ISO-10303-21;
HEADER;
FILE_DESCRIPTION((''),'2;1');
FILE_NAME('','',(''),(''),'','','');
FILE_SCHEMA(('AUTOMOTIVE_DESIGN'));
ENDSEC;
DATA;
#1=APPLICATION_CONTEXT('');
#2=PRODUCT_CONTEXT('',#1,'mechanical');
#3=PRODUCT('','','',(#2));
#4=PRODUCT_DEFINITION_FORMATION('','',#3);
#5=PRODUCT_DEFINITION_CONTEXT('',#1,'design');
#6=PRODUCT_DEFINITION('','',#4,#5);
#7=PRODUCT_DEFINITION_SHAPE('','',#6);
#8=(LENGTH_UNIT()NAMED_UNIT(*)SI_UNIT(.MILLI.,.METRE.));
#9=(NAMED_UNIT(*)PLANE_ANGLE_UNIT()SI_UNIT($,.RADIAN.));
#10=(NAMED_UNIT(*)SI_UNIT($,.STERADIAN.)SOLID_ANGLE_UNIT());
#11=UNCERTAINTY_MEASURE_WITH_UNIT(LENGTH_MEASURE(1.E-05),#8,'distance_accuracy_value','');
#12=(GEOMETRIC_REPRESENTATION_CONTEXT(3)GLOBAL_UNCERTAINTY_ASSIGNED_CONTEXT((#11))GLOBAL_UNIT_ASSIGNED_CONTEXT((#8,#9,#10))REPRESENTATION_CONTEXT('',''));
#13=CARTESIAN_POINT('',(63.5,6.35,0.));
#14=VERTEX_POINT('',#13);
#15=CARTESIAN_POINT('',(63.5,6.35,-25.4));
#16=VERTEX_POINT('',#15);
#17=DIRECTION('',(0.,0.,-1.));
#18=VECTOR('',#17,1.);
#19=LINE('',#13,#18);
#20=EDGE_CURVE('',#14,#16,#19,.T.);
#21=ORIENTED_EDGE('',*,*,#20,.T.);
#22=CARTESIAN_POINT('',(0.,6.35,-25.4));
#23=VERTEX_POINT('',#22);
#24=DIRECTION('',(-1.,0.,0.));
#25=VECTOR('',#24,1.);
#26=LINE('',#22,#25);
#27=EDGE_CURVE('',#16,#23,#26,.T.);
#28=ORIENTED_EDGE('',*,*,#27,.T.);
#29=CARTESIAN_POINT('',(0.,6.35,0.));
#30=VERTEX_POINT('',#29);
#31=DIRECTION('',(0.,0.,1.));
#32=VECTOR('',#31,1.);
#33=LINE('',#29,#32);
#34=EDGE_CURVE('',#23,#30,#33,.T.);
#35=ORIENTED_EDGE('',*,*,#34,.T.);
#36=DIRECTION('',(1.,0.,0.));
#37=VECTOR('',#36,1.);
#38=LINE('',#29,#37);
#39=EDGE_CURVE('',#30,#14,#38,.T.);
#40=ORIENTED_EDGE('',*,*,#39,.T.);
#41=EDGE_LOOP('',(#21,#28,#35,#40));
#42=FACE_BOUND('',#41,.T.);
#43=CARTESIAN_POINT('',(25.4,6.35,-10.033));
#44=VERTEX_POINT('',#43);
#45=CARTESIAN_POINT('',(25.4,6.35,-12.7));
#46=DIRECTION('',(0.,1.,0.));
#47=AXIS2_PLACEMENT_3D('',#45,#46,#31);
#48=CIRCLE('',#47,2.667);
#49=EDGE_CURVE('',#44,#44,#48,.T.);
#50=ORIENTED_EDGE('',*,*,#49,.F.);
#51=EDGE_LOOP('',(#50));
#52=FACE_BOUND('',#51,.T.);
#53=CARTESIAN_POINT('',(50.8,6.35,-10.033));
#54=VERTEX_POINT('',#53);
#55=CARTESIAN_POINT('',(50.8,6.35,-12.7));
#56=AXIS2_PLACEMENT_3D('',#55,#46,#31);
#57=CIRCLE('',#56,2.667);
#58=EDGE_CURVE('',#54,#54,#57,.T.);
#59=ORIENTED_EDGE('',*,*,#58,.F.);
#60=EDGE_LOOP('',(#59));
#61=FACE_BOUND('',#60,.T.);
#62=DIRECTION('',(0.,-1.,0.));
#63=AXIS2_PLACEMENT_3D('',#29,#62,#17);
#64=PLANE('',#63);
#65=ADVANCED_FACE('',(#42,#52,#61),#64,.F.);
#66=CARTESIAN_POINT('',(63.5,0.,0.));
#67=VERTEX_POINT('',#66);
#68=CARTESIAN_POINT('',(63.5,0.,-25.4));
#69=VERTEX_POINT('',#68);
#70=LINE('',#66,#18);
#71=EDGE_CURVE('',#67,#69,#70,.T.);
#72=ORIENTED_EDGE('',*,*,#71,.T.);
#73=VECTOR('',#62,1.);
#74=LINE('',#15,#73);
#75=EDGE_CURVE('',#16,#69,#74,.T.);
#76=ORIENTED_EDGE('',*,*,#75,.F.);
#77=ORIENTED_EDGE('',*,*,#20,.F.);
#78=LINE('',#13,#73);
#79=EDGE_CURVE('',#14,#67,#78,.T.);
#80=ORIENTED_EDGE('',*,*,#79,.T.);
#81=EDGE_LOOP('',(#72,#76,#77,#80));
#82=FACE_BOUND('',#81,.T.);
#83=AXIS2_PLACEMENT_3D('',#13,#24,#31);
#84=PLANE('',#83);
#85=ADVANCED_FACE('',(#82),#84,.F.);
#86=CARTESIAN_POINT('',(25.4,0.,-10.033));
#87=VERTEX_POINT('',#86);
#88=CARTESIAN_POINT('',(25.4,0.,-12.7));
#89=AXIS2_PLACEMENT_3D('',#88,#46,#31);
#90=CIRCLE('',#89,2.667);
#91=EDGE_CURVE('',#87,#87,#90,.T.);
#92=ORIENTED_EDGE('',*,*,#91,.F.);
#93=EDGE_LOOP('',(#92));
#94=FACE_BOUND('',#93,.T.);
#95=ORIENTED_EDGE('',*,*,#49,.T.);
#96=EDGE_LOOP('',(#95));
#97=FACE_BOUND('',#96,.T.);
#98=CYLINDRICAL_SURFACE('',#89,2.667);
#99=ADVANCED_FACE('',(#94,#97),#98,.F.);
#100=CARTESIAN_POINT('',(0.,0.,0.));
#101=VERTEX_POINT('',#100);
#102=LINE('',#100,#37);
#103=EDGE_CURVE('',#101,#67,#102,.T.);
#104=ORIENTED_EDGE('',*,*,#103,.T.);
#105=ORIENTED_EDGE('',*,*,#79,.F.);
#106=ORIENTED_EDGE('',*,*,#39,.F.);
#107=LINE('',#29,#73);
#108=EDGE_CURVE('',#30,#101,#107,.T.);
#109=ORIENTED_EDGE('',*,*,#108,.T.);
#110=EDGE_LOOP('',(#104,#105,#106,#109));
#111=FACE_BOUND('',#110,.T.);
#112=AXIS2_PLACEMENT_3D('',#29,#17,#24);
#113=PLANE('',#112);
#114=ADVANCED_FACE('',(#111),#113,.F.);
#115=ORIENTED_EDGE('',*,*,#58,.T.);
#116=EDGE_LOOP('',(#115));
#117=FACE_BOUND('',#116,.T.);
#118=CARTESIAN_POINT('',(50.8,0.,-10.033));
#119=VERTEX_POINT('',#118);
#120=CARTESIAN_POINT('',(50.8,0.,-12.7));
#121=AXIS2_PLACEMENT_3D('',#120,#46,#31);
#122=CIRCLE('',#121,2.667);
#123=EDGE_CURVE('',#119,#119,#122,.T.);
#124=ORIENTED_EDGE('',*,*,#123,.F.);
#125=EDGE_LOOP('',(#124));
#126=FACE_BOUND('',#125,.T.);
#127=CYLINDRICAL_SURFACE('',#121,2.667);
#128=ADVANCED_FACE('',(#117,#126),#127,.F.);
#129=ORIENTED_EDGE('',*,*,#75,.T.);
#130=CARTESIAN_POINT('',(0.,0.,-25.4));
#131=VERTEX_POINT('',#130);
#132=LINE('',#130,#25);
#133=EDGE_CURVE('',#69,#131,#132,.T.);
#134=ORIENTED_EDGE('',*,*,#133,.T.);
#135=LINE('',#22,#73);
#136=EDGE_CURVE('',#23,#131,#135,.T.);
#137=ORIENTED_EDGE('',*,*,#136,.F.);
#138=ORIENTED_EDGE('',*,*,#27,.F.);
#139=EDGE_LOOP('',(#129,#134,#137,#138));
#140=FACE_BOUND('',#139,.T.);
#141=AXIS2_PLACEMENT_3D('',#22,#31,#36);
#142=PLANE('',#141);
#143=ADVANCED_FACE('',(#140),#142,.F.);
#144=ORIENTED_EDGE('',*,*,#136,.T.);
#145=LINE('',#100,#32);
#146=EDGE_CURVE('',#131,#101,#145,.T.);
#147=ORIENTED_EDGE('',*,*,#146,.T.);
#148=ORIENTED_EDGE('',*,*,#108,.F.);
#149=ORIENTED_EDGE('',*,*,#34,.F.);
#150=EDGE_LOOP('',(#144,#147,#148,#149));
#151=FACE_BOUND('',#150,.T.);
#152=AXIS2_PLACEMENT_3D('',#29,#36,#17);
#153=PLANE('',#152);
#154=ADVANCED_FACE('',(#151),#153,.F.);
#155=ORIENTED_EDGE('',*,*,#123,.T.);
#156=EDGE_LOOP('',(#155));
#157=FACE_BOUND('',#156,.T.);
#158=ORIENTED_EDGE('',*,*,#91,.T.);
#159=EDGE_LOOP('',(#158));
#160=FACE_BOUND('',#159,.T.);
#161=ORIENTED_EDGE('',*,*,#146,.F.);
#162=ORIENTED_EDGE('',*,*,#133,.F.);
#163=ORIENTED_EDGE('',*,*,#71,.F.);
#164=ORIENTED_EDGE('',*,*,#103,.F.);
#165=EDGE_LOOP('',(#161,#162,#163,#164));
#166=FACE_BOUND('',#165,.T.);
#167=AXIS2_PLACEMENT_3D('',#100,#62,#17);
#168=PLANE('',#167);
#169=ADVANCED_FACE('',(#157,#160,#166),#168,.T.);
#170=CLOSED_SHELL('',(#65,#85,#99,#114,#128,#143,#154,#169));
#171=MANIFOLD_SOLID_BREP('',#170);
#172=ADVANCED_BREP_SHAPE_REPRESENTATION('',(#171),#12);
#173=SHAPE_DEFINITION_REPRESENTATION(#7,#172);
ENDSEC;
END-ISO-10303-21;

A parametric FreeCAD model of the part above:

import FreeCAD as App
import Part
import Sketcher

V = App.Vector
Q = App.Units.Quantity

doc = App.newDocument("Part")
body = doc.addObject("PartDesign::Body", "Body")

# Sketch on XZ plane
sketch1 = body.newObject("Sketcher::SketchObject", "Sketch")
sketch1.AttachmentSupport = (doc.getObject("XZ_Plane"), [""])
sketch1.MapMode = "FlatFace"
sketch1.addGeometry([
    Part.LineSegment(V(0, -25, 0), V(0, 0, 0)),
    Part.LineSegment(V(0, 0, 0), V(64, 0, 0)),
    Part.LineSegment(V(64, 0, 0), V(64, -25, 0)),
    Part.LineSegment(V(64, -25, 0), V(0, -25, 0)),
], False)
sketch1.addConstraint([
    Sketcher.Constraint("Coincident", 0, 2, 1, 1),
    Sketcher.Constraint("Coincident", 1, 2, 2, 1),
    Sketcher.Constraint("Coincident", 2, 2, 3, 1),
    Sketcher.Constraint("Coincident", 3, 2, 0, 1),
    Sketcher.Constraint("Vertical", 0),
    Sketcher.Constraint("Horizontal", 1),
    Sketcher.Constraint("Vertical", 2),
    Sketcher.Constraint("Horizontal", 3),
    Sketcher.Constraint("Coincident", 0, 2, -1, 1),
    Sketcher.Constraint("DistanceY", 0, 1, 0, 2, Q("1 in")),
    Sketcher.Constraint("DistanceX", 1, 1, 1, 2, Q("2.5 in")),
])
pad1 = body.newObject("PartDesign::Pad", "Pad")
pad1.Profile = sketch1
pad1.Length = Q("0.25 in")
pad1.Reversed = True

# Sketch on XZ plane
sketch2 = body.newObject("Sketcher::SketchObject", "Sketch001")
sketch2.AttachmentSupport = (doc.getObject("XZ_Plane"), [""])
sketch2.MapMode = "FlatFace"
sketch2.AttachmentOffset = App.Placement(V(0, 0, -0.25 * 25.4), App.Rotation())
sketch2.addGeometry([
    Part.Circle(V(25.4, -12.7, 0), V(0, 0, 1), 2.7),
    Part.Circle(V(50.8, -12.7, 0), V(0, 0, 1), 2.7),
], False)
sketch2.addConstraint([
    Sketcher.Constraint("Equal", 0, 1),
    Sketcher.Constraint("Horizontal", 0, 3, 1, 3),
    Sketcher.Constraint("Diameter", 0, Q("0.21 in")),
    Sketcher.Constraint("DistanceX", -1, 1, 0, 3, Q("1 in")),
    Sketcher.Constraint("DistanceX", -1, 1, 1, 3, Q("2 in")),
    Sketcher.Constraint("DistanceY", 0, 3, -1, 1, Q("0.5 in")),
])
pocket1 = body.newObject("PartDesign::Pocket", "Pocket")
pocket1.Profile = sketch2
pocket1.Type = "ThroughAll"
pocket1.Reversed = True

doc.recompute()
